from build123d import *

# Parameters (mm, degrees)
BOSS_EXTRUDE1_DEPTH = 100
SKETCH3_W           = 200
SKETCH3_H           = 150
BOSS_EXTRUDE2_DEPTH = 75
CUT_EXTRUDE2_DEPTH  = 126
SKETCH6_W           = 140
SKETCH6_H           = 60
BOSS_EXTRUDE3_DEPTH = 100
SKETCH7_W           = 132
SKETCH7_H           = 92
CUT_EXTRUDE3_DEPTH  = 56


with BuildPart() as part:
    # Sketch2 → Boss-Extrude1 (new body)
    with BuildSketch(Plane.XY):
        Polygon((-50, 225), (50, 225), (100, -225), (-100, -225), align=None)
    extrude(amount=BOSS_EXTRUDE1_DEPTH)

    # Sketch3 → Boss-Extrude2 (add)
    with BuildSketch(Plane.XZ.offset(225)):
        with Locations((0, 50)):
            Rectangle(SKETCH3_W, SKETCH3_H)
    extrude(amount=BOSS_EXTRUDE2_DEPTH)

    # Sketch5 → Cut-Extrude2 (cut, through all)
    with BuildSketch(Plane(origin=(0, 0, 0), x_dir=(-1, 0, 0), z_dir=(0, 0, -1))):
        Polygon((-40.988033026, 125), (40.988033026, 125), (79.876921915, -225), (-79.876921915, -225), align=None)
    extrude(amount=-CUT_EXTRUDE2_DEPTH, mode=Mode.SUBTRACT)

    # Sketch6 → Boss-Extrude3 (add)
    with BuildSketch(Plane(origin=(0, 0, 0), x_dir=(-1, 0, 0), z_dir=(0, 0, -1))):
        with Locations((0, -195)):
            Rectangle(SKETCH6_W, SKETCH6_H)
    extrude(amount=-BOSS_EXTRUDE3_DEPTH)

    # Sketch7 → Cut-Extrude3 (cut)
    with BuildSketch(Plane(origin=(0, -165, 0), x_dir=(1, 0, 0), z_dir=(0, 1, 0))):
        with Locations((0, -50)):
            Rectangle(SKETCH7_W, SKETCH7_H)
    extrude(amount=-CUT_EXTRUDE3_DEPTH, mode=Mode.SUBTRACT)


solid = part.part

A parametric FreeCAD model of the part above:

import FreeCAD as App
import Part
import Sketcher

V = App.Vector


def add_polygon(sketch, points):
    """Adds a closed chain of lines whose ends are joined by coincident constraints."""
    first, n = sketch.GeometryCount, len(points)
    for a, b in zip(points, points[1:] + points[:1]):
        sketch.addGeometry(Part.LineSegment(App.Vector(*a, 0), App.Vector(*b, 0)), False)
    for i in range(n):
        sketch.addConstraint(Sketcher.Constraint("Coincident", first + i, 2, first + (i + 1) % n, 1))

doc = App.newDocument("Part")
params = doc.addObject("Spreadsheet::Sheet", "Params")
for row, (alias, value) in enumerate([
    ("sketch1_width", "100 mm"),
    ("sketch1_width2", "200 mm"),
    ("pad1_length", "100 mm"),
    ("sketch2_width", "200 mm"),
    ("sketch2_height", "150 mm"),
    ("pad2_length", "75 mm"),
    ("sketch4_width", "140 mm"),
    ("sketch4_height", "60 mm"),
    ("pad3_length", "100 mm"),
    ("sketch5_width", "132 mm"),
    ("sketch5_height", "92 mm"),
    ("pocket2_length", "56 mm"),
], start=1):
    params.set(f"A{row}", alias)
    params.set(f"B{row}", "=" + value)
    params.setAlias(f"B{row}", alias)

body = doc.addObject("PartDesign::Body", "Body")

sketch1 = body.newObject("Sketcher::SketchObject", "Sketch")
sketch1.AttachmentSupport = (doc.getObject("XY_Plane"), [""])
sketch1.MapMode = "FlatFace"
add_polygon(sketch1, [(50, 225), (-50, 225), (-100, -225), (100, -225)])
sketch1.addConstraint([
    Sketcher.Constraint("Horizontal", 0),
    Sketcher.Constraint("Horizontal", 2),
    Sketcher.Constraint("Equal", 1, 3),
    Sketcher.Constraint("DistanceX", 0, 2, 0, 1, 100.0),
    Sketcher.Constraint("DistanceX", 2, 1, 2, 2, 200.0),
    Sketcher.Constraint("DistanceX", 0, 2, -1, 1, 50.0),
    Sketcher.Constraint("DistanceY", -1, 1, 0, 2, 225.0),
    Sketcher.Constraint("DistanceY", 1, 2, -1, 1, 225.0),
])
sketch1.setExpression("Constraints[7]", "Params.sketch1_width")
sketch1.setExpression("Constraints[8]", "Params.sketch1_width2")
pad1 = body.newObject("PartDesign::Pad", "Pad")
pad1.Profile = sketch1
pad1.setExpression("Length", "Params.pad1_length")

sketch2 = body.newObject("Sketcher::SketchObject", "Sketch001")
sketch2.AttachmentSupport = (doc.getObject("XZ_Plane"), [""])
sketch2.MapMode = "FlatFace"
sketch2.AttachmentOffset = App.Placement(V(0, 0, 225), App.Rotation())
add_polygon(sketch2, [(-100, 125), (-100, -25), (100, -25), (100, 125)])
sketch2.addConstraint([
    Sketcher.Constraint("Vertical", 0),
    Sketcher.Constraint("Horizontal", 1),
    Sketcher.Constraint("Vertical", 2),
    Sketcher.Constraint("Horizontal", 3),
    Sketcher.Constraint("DistanceX", 1, 1, 1, 2, 200.0),
    Sketcher.Constraint("DistanceY", 0, 2, 0, 1, 150.0),
    Sketcher.Constraint("DistanceX", 0, 2, -1, 1, 100.0),
    Sketcher.Constraint("DistanceY", 0, 2, -1, 1, 25.0),
])
sketch2.setExpression("Constraints[8]", "Params.sketch2_width")
sketch2.setExpression("Constraints[9]", "Params.sketch2_height")
pad2 = body.newObject("PartDesign::Pad", "Pad001")
pad2.Profile = sketch2
pad2.setExpression("Length", "Params.pad2_length")

sketch3 = body.newObject("Sketcher::SketchObject", "Sketch002")
sketch3.AttachmentSupport = (doc.getObject("XY_Plane"), [""])
sketch3.MapMode = "FlatFace"
add_polygon(sketch3, [(-41, 125), (41, 125), (80, -225), (-80, -225)])
sketch3.addConstraint([
    Sketcher.Constraint("Horizontal", 0),
    Sketcher.Constraint("Horizontal", 2),
    Sketcher.Constraint("Equal", 1, 3),
    Sketcher.Constraint("DistanceY", -1, 1, 0, 2, 125.0),
    Sketcher.Constraint("DistanceY", 1, 2, -1, 1, 225.0),
    Sketcher.Constraint("DistanceX", 0, 1, 0, 2, 81.976066),
    Sketcher.Constraint("DistanceX", 2, 2, 2, 1, 159.753844),
    Sketcher.Constraint("DistanceX", -1, 1, 1, 2, 79.876922),
])
pocket1 = body.newObject("PartDesign::Pocket", "Pocket")
pocket1.Profile = sketch3
pocket1.Type = "ThroughAll"
pocket1.Reversed = True

sketch4 = body.newObject("Sketcher::SketchObject", "Sketch003")
sketch4.AttachmentSupport = (doc.getObject("XY_Plane"), [""])
sketch4.MapMode = "FlatFace"
add_polygon(sketch4, [(70, -165), (70, -225), (-70, -225), (-70, -165)])
sketch4.addConstraint([
    Sketcher.Constraint("Vertical", 0),
    Sketcher.Constraint("Horizontal", 1),
    Sketcher.Constraint("Vertical", 2),
    Sketcher.Constraint("Horizontal", 3),
    Sketcher.Constraint("DistanceX", 1, 2, 1, 1, 140.0),
    Sketcher.Constraint("DistanceY", 0, 2, 0, 1, 60.0),
    Sketcher.Constraint("DistanceX", -1, 1, 0, 2, 70.0),
    Sketcher.Constraint("DistanceY", 0, 2, -1, 1, 225.0),
])
sketch4.setExpression("Constraints[8]", "Params.sketch4_width")
sketch4.setExpression("Constraints[9]", "Params.sketch4_height")
pad3 = body.newObject("PartDesign::Pad", "Pad002")
pad3.Profile = sketch4
pad3.setExpression("Length", "Params.pad3_length")

sketch5 = body.newObject("Sketcher::SketchObject", "Sketch004")
sketch5.AttachmentSupport = (doc.getObject("XZ_Plane"), [""])
sketch5.MapMode = "FlatFace"
sketch5.AttachmentOffset = App.Placement(V(0, 0, 165), App.Rotation())
add_polygon(sketch5, [(-66, 4), (-66, 96), (66, 96), (66, 4)])
sketch5.addConstraint([
    Sketcher.Constraint("Vertical", 0),
    Sketcher.Constraint("Horizontal", 1),
    Sketcher.Constraint("Vertical", 2),
    Sketcher.Constraint("Horizontal", 3),
    Sketcher.Constraint("DistanceX", 1, 1, 1, 2, 132.0),
    Sketcher.Constraint("DistanceY", 0, 1, 0, 2, 92.0),
    Sketcher.Constraint("DistanceX", 0, 2, -1, 1, 66.0),
    Sketcher.Constraint("DistanceY", -1, 1, 0, 2, 96.0),
])
sketch5.setExpression("Constraints[8]", "Params.sketch5_width")
sketch5.setExpression("Constraints[9]", "Params.sketch5_height")
pocket2 = body.newObject("PartDesign::Pocket", "Pocket001")
pocket2.Profile = sketch5
pocket2.setExpression("Length", "Params.pocket2_length")
pocket2.Reversed = True

doc.recompute()
